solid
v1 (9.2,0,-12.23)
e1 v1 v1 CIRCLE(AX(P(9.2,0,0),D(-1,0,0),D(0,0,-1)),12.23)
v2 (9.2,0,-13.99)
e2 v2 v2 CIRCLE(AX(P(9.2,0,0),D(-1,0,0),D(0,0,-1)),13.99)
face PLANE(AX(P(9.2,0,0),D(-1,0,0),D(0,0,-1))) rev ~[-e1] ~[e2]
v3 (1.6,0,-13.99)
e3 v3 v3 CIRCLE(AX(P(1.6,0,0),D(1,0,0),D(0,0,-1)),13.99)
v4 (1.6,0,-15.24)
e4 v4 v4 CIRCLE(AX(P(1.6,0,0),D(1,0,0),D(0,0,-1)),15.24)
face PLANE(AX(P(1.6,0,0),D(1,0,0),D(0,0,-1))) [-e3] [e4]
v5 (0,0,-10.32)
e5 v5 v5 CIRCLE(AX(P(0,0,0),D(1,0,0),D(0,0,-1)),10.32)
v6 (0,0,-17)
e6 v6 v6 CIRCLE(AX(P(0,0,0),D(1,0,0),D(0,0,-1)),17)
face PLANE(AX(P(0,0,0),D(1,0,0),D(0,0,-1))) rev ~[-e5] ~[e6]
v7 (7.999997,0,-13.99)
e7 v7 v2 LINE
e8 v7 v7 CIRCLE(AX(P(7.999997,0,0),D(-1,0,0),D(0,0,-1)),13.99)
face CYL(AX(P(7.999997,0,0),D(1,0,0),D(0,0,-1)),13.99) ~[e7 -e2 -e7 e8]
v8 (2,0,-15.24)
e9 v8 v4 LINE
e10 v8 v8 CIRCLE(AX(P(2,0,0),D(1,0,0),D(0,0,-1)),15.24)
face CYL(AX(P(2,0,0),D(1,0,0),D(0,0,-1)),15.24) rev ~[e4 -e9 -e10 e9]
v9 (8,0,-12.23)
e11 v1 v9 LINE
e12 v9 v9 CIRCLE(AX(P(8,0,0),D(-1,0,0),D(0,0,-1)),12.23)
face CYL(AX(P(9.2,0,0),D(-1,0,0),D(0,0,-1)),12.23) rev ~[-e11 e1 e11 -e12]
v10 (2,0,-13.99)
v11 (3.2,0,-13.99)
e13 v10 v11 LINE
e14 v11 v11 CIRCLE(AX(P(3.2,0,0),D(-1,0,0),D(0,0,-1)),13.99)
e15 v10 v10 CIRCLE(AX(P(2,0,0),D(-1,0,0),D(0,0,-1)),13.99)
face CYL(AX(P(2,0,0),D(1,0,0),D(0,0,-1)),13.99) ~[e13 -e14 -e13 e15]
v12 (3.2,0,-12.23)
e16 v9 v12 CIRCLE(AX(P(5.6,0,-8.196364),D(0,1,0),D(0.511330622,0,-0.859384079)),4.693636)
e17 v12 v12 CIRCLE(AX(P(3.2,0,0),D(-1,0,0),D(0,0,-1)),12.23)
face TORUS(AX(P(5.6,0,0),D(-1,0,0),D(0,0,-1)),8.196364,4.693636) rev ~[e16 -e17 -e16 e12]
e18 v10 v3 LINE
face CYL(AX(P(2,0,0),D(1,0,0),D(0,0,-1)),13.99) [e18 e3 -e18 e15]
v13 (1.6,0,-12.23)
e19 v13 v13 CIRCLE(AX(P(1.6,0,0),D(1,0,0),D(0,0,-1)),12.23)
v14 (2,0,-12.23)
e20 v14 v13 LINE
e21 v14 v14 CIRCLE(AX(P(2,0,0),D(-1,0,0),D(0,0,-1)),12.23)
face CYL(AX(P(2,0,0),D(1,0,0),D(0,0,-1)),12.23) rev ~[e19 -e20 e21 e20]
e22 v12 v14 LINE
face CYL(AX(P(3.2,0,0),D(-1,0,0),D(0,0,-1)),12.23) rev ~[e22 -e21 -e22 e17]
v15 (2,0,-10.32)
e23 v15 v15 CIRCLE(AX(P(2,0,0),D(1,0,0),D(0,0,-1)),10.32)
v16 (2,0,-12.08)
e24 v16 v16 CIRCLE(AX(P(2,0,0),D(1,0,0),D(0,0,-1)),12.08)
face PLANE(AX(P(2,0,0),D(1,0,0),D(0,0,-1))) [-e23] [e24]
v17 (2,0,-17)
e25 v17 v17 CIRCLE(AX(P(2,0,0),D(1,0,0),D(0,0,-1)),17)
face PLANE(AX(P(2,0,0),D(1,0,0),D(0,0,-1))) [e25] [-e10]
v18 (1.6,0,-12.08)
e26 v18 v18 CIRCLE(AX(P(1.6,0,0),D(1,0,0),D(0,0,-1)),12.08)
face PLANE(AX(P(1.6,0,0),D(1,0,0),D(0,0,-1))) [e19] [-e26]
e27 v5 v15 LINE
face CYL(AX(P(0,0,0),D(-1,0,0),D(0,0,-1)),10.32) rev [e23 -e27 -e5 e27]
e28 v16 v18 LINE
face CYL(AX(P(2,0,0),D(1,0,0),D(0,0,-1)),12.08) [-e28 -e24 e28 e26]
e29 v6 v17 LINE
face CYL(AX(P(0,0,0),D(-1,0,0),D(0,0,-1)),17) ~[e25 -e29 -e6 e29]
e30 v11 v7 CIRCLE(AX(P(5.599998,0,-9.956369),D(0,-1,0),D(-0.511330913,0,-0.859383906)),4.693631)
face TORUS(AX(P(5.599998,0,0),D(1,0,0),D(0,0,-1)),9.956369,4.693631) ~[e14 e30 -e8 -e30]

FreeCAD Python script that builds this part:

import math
import FreeCAD as App
import Part
import Sketcher
Q = App.Units.Quantity

doc = App.newDocument("Part")
body = doc.addObject("PartDesign::Body", "Body")

# Sketch on YZ plane
sketch1 = body.newObject("Sketcher::SketchObject", "Sketch")
sketch1.AttachmentSupport = (doc.getObject("YZ_Plane"), [""])
sketch1.MapMode = "FlatFace"
sketch1.addGeometry([
    Part.Circle(App.Vector(0, 0, 0), App.Vector(0, 0, 1), 17),
    Part.Circle(App.Vector(0, 0, 0), App.Vector(0, 0, 1), 10.32),
], False)
sketch1.addConstraint([
    Sketcher.Constraint("Coincident", 0, 3, -1, 1),
    Sketcher.Constraint("Coincident", 1, 3, -1, 1),
    Sketcher.Constraint("Diameter", 0, Q("34 mm")),
    Sketcher.Constraint("Diameter", 1, Q("20.64 mm")),
])
pad1 = body.newObject("PartDesign::Pad", "Pad")
pad1.Profile = sketch1
pad1.Length = 2

# Sketch on XZ plane
sketch2 = body.newObject("Sketcher::SketchObject", "Sketch001")
sketch2.AttachmentSupport = (doc.getObject("XZ_Plane"), [""])
sketch2.MapMode = "FlatFace"
sketch2.addGeometry([
    Part.LineSegment(App.Vector(9.2, -12.23, 0), App.Vector(9.2, -13.99, 0)),  # 0
    Part.LineSegment(App.Vector(9.2, -13.99, 0), App.Vector(7.999997, -13.99, 0)),  # 1
    Part.ArcOfCircle(Part.Circle(App.Vector(5.599998, -9.956369, 0), App.Vector(0, 0, 1), 4.693631), math.radians(-120.752522), math.radians(-59.247478)),  # 2
    Part.LineSegment(App.Vector(3.2, -13.99, 0), App.Vector(2, -13.99, 0)),  # 3
    Part.LineSegment(App.Vector(2, -13.99, 0), App.Vector(2, -12.23, 0)),  # 4
    Part.LineSegment(App.Vector(2, -12.23, 0), App.Vector(3.2, -12.23, 0)),  # 5
    Part.ArcOfCircle(Part.Circle(App.Vector(5.6, -8.196364, 0), App.Vector(0, 0, 1), 4.693636), math.radians(-120.752502), math.radians(-59.247498)),  # 6
    Part.LineSegment(App.Vector(8, -12.23, 0), App.Vector(9.2, -12.23, 0)),  # 7
], False)
sketch2.addConstraint([
    Sketcher.Constraint("Coincident", 0, 2, 1, 1),
    Sketcher.Constraint("Coincident", 1, 2, 2, 2),
    Sketcher.Constraint("Coincident", 2, 1, 3, 1),
    Sketcher.Constraint("Coincident", 3, 2, 4, 1),
    Sketcher.Constraint("Coincident", 4, 2, 5, 1),
    Sketcher.Constraint("Coincident", 5, 2, 6, 1),
    Sketcher.Constraint("Coincident", 6, 2, 7, 1),
    Sketcher.Constraint("Coincident", 7, 2, 0, 1),
    Sketcher.Constraint("Vertical", 0),
    Sketcher.Constraint("Horizontal", 1),
    Sketcher.Constraint("Horizontal", 3),
    Sketcher.Constraint("Vertical", 4),
    Sketcher.Constraint("Horizontal", 5),
    Sketcher.Constraint("Horizontal", 7),
    Sketcher.Constraint("Horizontal", 1, 2, 2, 1),
    Sketcher.Constraint("Horizontal", 5, 2, 6, 2),
    Sketcher.Constraint("Vertical", 2, 3, 6, 3),
    Sketcher.Constraint("Vertical", 2, 1, 5, 2),
    Sketcher.Constraint("Equal", 5, 7),
    Sketcher.Constraint("DistanceX", 3, 2, 3, 1, Q("1.2 mm")),
    Sketcher.Constraint("DistanceX", -1, 1, 3, 2, Q("2 mm")),
    Sketcher.Constraint("DistanceX", -1, 1, 6, 2, Q("8 mm")),
    Sketcher.Constraint("DistanceY", 0, 2, 0, 1, Q("1.76 mm")),
    Sketcher.Constraint("DistanceY", 0, 2, -1, 1, Q("13.99 mm")),
    Sketcher.Constraint("Radius", 2, Q("4.693631 mm")),
    Sketcher.Constraint("Radius", 6, Q("4.693636 mm")),
])
revolution = body.newObject("PartDesign::Revolution", "Revolution")
revolution.Profile = sketch2
revolution.ReferenceAxis = (sketch2, ["H_Axis"])
revolution.Angle = 360

# Sketch on YZ plane
sketch3 = body.newObject("Sketcher::SketchObject", "Sketch002")
sketch3.AttachmentSupport = (doc.getObject("YZ_Plane"), [""])
sketch3.MapMode = "FlatFace"
sketch3.AttachmentOffset = App.Placement(App.Vector(0, 0, 2), App.Rotation())
sketch3.addGeometry([
    Part.Circle(App.Vector(0, 0, 0), App.Vector(0, 0, 1), 15.24),
    Part.Circle(App.Vector(0, 0, 0), App.Vector(0, 0, 1), 13.99),
], False)
sketch3.addConstraint([
    Sketcher.Constraint("Coincident", 0, 3, -1, 1),
    Sketcher.Constraint("Coincident", 1, 3, -1, 1),
    Sketcher.Constraint("Diameter", 0, Q("30.48 mm")),
    Sketcher.Constraint("Diameter", 1, Q("27.98 mm")),
])
pocket1 = body.newObject("PartDesign::Pocket", "Pocket")
pocket1.Profile = sketch3
pocket1.Length = 0.4

# Sketch on YZ plane
sketch4 = body.newObject("Sketcher::SketchObject", "Sketch003")
sketch4.AttachmentSupport = (doc.getObject("YZ_Plane"), [""])
sketch4.MapMode = "FlatFace"
sketch4.AttachmentOffset = App.Placement(App.Vector(0, 0, 2), App.Rotation())
sketch4.addGeometry([
    Part.Circle(App.Vector(0, 0, 0), App.Vector(0, 0, 1), 12.23),
    Part.Circle(App.Vector(0, 0, 0), App.Vector(0, 0, 1), 12.08),
], False)
sketch4.addConstraint([
    Sketcher.Constraint("Coincident", 0, 3, -1, 1),
    Sketcher.Constraint("Coincident", 1, 3, -1, 1),
    Sketcher.Constraint("Diameter", 0, Q("24.46 mm")),
    Sketcher.Constraint("Diameter", 1, Q("24.16 mm")),
])
pocket2 = body.newObject("PartDesign::Pocket", "Pocket001")
pocket2.Profile = sketch4
pocket2.Length = 0.4

doc.recompute()
